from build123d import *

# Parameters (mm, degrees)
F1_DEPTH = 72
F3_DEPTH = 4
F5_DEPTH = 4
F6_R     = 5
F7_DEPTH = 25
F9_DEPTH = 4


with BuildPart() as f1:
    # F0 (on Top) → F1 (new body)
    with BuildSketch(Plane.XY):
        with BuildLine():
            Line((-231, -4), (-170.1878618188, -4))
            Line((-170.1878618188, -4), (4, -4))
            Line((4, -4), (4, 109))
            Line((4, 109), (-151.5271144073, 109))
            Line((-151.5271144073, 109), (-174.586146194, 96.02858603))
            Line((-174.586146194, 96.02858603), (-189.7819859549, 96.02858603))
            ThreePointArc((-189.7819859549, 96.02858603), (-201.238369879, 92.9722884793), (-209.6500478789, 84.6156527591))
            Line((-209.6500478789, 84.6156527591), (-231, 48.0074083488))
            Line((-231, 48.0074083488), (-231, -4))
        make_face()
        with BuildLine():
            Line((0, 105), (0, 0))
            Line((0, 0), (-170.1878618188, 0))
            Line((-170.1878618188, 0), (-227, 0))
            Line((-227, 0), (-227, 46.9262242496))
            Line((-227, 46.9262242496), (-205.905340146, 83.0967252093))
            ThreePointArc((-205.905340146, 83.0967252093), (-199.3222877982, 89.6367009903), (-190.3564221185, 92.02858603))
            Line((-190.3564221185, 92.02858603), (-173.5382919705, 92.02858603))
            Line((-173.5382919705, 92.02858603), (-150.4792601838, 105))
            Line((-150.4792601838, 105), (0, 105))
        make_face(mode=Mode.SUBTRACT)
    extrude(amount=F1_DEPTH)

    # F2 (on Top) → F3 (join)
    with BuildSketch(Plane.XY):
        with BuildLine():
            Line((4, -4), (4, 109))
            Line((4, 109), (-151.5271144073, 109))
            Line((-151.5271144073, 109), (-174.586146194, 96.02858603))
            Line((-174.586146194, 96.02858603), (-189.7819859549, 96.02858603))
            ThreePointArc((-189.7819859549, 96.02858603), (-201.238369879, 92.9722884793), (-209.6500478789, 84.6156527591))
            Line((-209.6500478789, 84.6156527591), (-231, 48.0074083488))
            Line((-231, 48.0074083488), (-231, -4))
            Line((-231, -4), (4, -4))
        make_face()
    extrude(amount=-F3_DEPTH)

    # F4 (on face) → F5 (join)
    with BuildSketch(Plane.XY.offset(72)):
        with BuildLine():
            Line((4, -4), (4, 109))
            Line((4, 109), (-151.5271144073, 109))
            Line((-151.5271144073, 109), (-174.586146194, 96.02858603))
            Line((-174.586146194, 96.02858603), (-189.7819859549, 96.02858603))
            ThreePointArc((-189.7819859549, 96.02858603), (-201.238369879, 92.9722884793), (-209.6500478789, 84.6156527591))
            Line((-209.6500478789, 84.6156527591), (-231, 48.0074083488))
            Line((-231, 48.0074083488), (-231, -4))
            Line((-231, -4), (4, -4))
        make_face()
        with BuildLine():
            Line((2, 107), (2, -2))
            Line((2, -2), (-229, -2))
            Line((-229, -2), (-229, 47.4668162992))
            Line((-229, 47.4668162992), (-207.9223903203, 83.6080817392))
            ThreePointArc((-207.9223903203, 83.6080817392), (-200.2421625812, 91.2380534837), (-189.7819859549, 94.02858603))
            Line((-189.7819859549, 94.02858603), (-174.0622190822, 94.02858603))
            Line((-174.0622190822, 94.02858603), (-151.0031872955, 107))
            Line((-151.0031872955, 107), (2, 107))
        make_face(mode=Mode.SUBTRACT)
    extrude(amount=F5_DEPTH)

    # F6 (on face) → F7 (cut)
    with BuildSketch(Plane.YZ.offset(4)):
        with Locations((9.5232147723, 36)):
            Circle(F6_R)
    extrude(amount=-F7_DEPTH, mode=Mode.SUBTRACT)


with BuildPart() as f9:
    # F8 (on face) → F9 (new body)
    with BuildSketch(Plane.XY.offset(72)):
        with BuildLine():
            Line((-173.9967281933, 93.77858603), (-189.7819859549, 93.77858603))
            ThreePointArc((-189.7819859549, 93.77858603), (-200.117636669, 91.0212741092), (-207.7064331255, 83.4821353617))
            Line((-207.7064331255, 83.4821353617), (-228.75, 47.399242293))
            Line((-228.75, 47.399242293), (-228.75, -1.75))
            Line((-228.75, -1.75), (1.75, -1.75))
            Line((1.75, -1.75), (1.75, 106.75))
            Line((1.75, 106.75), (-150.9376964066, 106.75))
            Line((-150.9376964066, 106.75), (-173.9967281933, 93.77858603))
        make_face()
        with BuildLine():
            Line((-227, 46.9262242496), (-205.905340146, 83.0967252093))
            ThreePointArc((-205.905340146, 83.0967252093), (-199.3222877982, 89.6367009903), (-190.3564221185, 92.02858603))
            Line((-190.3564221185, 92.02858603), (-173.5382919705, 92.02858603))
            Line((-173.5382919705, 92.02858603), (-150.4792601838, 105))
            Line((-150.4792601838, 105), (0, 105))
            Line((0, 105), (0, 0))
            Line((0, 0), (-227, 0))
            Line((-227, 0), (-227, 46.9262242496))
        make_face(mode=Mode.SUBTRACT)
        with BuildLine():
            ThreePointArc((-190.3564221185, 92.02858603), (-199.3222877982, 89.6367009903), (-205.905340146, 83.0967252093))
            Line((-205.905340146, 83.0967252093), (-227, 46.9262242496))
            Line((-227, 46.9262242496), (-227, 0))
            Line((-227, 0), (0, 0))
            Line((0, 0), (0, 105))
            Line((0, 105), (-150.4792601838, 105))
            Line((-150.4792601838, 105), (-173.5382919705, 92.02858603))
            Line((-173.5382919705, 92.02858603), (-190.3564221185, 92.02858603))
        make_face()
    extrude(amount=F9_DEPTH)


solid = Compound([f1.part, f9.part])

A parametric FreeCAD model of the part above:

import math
import FreeCAD as App
import Part
import Sketcher
Q = App.Units.Quantity

doc = App.newDocument("Part")
params = doc.addObject("Spreadsheet::Sheet", "Params")
for row, (alias, value) in enumerate([
    ("sketch1_radius", "23 mm"),
    ("sketch1_radius2", "18 mm"),
    ("sketch1_width", "235 mm"),
    ("sketch1_width2", "227 mm"),
    ("sketch1_height", "113 mm"),
    ("pad1_length", "72 mm"),
    ("sketch2_radius", "23 mm"),
    ("sketch2_width", "235 mm"),
    ("sketch2_height", "113 mm"),
    ("pad2_length", "4 mm"),
    ("sketch3_radius", "23 mm"),
    ("sketch3_radius2", "21 mm"),
    ("sketch3_width", "235 mm"),
    ("sketch3_width2", "231 mm"),
    ("sketch3_height", "113 mm"),
    ("pad3_length", "4 mm"),
    ("sketch4_diameter", "10 mm"),
    ("pocket1_length", "25 mm"),
    ("sketch5_radius", "20.75 mm"),
    ("sketch5_width", "230.5 mm"),
    ("sketch5_height", "108.5 mm"),
    ("pad4_length", "4 mm"),
], start=1):
    params.set(f"A{row}", alias)
    params.set(f"B{row}", "=" + value)
    params.setAlias(f"B{row}", alias)

body = doc.addObject("PartDesign::Body", "Body")

sketch1 = doc.addObject("Sketcher::SketchObject", "Sketch")
body.addObject(sketch1)
sketch1.AttachmentSupport = (doc.XY_Plane, [""])
sketch1.MapMode = "FlatFace"
sketch1.addGeometry(Part.LineSegment(App.Vector(-231, -4, 0), App.Vector(4, -4, 0)), False)
sketch1.addGeometry(Part.LineSegment(App.Vector(4, -4, 0), App.Vector(4, 109, 0)), False)
sketch1.addGeometry(Part.LineSegment(App.Vector(4, 109, 0), App.Vector(-151.527114, 109, 0)), False)
sketch1.addGeometry(Part.LineSegment(App.Vector(-151.527114, 109, 0), App.Vector(-174.586146, 96.028586, 0)), False)
sketch1.addGeometry(Part.LineSegment(App.Vector(-174.586146, 96.028586, 0), App.Vector(-189.781986, 96.028586, 0)), False)
sketch1.addGeometry(Part.ArcOfCircle(Part.Circle(App.Vector(-189.781986, 73.028586, 0), App.Vector(0, 0, 1), 23), math.radians(90), math.radians(149.749235)), False)
sketch1.addGeometry(Part.LineSegment(App.Vector(-209.650048, 84.615653, 0), App.Vector(-231, 48.007408, 0)), False)
sketch1.addGeometry(Part.LineSegment(App.Vector(-231, 48.007408, 0), App.Vector(-231, -4, 0)), False)
sketch1.addGeometry(Part.LineSegment(App.Vector(-150.47926, 105, 0), App.Vector(0, 105, 0)), False)
sketch1.addGeometry(Part.LineSegment(App.Vector(0, 105, 0), App.Vector(0, 0, 0)), False)
sketch1.addGeometry(Part.LineSegment(App.Vector(0, 0, 0), App.Vector(-227, 0, 0)), False)
sketch1.addGeometry(Part.LineSegment(App.Vector(-227, 0, 0), App.Vector(-227, 46.926224, 0)), False)
sketch1.addGeometry(Part.LineSegment(App.Vector(-227, 46.926224, 0), App.Vector(-205.90534, 83.096725, 0)), False)
sketch1.addGeometry(Part.ArcOfCircle(Part.Circle(App.Vector(-190.356422, 74.028586, 0), App.Vector(0, 0, 1), 18), math.radians(90), math.radians(149.749235)), False)
sketch1.addGeometry(Part.LineSegment(App.Vector(-190.356422, 92.028586, 0), App.Vector(-173.538292, 92.028586, 0)), False)
sketch1.addGeometry(Part.LineSegment(App.Vector(-173.538292, 92.028586, 0), App.Vector(-150.47926, 105, 0)), False)
sketch1.addConstraint(Sketcher.Constraint("Coincident", 0, 2, 1, 1))
sketch1.addConstraint(Sketcher.Constraint("Coincident", 1, 2, 2, 1))
sketch1.addConstraint(Sketcher.Constraint("Coincident", 2, 2, 3, 1))
sketch1.addConstraint(Sketcher.Constraint("Coincident", 3, 2, 4, 1))
sketch1.addConstraint(Sketcher.Constraint("Tangent", 4, 2, 5, 1))
sketch1.addConstraint(Sketcher.Constraint("Tangent", 5, 2, 6, 1))
sketch1.addConstraint(Sketcher.Constraint("Coincident", 6, 2, 7, 1))
sketch1.addConstraint(Sketcher.Constraint("Coincident", 7, 2, 0, 1))
sketch1.addConstraint(Sketcher.Constraint("Coincident", 8, 2, 9, 1))
sketch1.addConstraint(Sketcher.Constraint("Coincident", 9, 2, 10, 1))
sketch1.addConstraint(Sketcher.Constraint("Coincident", 10, 2, 11, 1))
sketch1.addConstraint(Sketcher.Constraint("Coincident", 11, 2, 12, 1))
sketch1.addConstraint(Sketcher.Constraint("Tangent", 12, 2, 13, 2))
sketch1.addConstraint(Sketcher.Constraint("Tangent", 13, 1, 14, 1))
sketch1.addConstraint(Sketcher.Constraint("Coincident", 14, 2, 15, 1))
sketch1.addConstraint(Sketcher.Constraint("Coincident", 15, 2, 8, 1))
sketch1.addConstraint(Sketcher.Constraint("Horizontal", 0))
sketch1.addConstraint(Sketcher.Constraint("Vertical", 1))
sketch1.addConstraint(Sketcher.Constraint("Horizontal", 2))
sketch1.addConstraint(Sketcher.Constraint("Horizontal", 4))
sketch1.addConstraint(Sketcher.Constraint("Vertical", 7))
sketch1.addConstraint(Sketcher.Constraint("Horizontal", 8))
sketch1.addConstraint(Sketcher.Constraint("Vertical", 9))
sketch1.addConstraint(Sketcher.Constraint("Horizontal", 10))
sketch1.addConstraint(Sketcher.Constraint("Vertical", 11))
sketch1.addConstraint(Sketcher.Constraint("Horizontal", 14))
sketch1.addConstraint(Sketcher.Constraint("Coincident", 9, 2, -1, 1))
sketch1.addConstraint(Sketcher.Constraint("Parallel", 6, 12))
sketch1.addConstraint(Sketcher.Constraint("Parallel", 3, 15))
sketch1.addConstraint(Sketcher.Constraint("Equal", 3, 15))
sketch1.addConstraint(Sketcher.Constraint("Radius", 5, Q("23 mm")))
sketch1.addConstraint(Sketcher.Constraint("Radius", 13, Q("18 mm")))
sketch1.addConstraint(Sketcher.Constraint("DistanceX", 0, 1, 0, 2, Q("235 mm")))
sketch1.addConstraint(Sketcher.Constraint("DistanceX", 10, 2, 10, 1, Q("227 mm")))
sketch1.addConstraint(Sketcher.Constraint("DistanceY", 1, 1, 1, 2, Q("113 mm")))
sketch1.addConstraint(Sketcher.Constraint("DistanceY", 9, 2, 9, 1, Q("105 mm")))
sketch1.addConstraint(Sketcher.Constraint("DistanceX", -1, 1, 0, 2, Q("4 mm")))
sketch1.addConstraint(Sketcher.Constraint("DistanceY", 0, 2, -1, 1, Q("4 mm")))
sketch1.addConstraint(Sketcher.Constraint("DistanceX", 4, 2, 4, 1, Q("15.19584 mm")))
sketch1.addConstraint(Sketcher.Constraint("DistanceX", 8, 1, 8, 2, Q("150.47926 mm")))
sketch1.addConstraint(Sketcher.Constraint("DistanceX", 14, 1, 14, 2, Q("16.81813 mm")))
sketch1.addConstraint(Sketcher.Constraint("DistanceY", 7, 2, 7, 1, Q("52.007408 mm")))
sketch1.addConstraint(Sketcher.Constraint("DistanceX", 5, 2, 3, 2, Q("35.063902 mm")))
sketch1.addConstraint(Sketcher.Constraint("Distance", 3, Q("26.45707 mm")))
sketch1.addConstraint(Sketcher.Constraint("Distance", 6, Q("42.379052 mm")))
sketch1.setExpression("Constraints[30]", "Params.sketch1_radius")
sketch1.setExpression("Constraints[31]", "Params.sketch1_radius2")
sketch1.setExpression("Constraints[32]", "Params.sketch1_width")
sketch1.setExpression("Constraints[33]", "Params.sketch1_width2")
sketch1.setExpression("Constraints[34]", "Params.sketch1_height")
pad1 = doc.addObject("PartDesign::Pad", "Pad")
body.addObject(pad1)
pad1.Profile = sketch1
pad1.setExpression("Length", "Params.pad1_length")

sketch2 = doc.addObject("Sketcher::SketchObject", "Sketch001")
body.addObject(sketch2)
sketch2.AttachmentSupport = (doc.XY_Plane, [""])
sketch2.MapMode = "FlatFace"
sketch2.addGeometry(Part.LineSegment(App.Vector(4, -4, 0), App.Vector(4, 109, 0)), False)
sketch2.addGeometry(Part.LineSegment(App.Vector(4, 109, 0), App.Vector(-151.527114, 109, 0)), False)
sketch2.addGeometry(Part.LineSegment(App.Vector(-151.527114, 109, 0), App.Vector(-174.586146, 96.028586, 0)), False)
sketch2.addGeometry(Part.LineSegment(App.Vector(-174.586146, 96.028586, 0), App.Vector(-189.781986, 96.028586, 0)), False)
sketch2.addGeometry(Part.ArcOfCircle(Part.Circle(App.Vector(-189.781986, 73.028586, 0), App.Vector(0, 0, 1), 23), math.radians(90), math.radians(149.749235)), False)
sketch2.addGeometry(Part.LineSegment(App.Vector(-209.650048, 84.615653, 0), App.Vector(-231, 48.007408, 0)), False)
sketch2.addGeometry(Part.LineSegment(App.Vector(-231, 48.007408, 0), App.Vector(-231, -4, 0)), False)
sketch2.addGeometry(Part.LineSegment(App.Vector(-231, -4, 0), App.Vector(4, -4, 0)), False)
sketch2.addConstraint(Sketcher.Constraint("Coincident", 0, 2, 1, 1))
sketch2.addConstraint(Sketcher.Constraint("Coincident", 1, 2, 2, 1))
sketch2.addConstraint(Sketcher.Constraint("Coincident", 2, 2, 3, 1))
sketch2.addConstraint(Sketcher.Constraint("Tangent", 3, 2, 4, 1))
sketch2.addConstraint(Sketcher.Constraint("Tangent", 4, 2, 5, 1))
sketch2.addConstraint(Sketcher.Constraint("Coincident", 5, 2, 6, 1))
sketch2.addConstraint(Sketcher.Constraint("Coincident", 6, 2, 7, 1))
sketch2.addConstraint(Sketcher.Constraint("Coincident", 7, 2, 0, 1))
sketch2.addConstraint(Sketcher.Constraint("Vertical", 0))
sketch2.addConstraint(Sketcher.Constraint("Horizontal", 1))
sketch2.addConstraint(Sketcher.Constraint("Horizontal", 3))
sketch2.addConstraint(Sketcher.Constraint("Vertical", 6))
sketch2.addConstraint(Sketcher.Constraint("Horizontal", 7))
sketch2.addConstraint(Sketcher.Constraint("Radius", 4, Q("23 mm")))
sketch2.addConstraint(Sketcher.Constraint("DistanceX", 7, 1, 7, 2, Q("235 mm")))
sketch2.addConstraint(Sketcher.Constraint("DistanceY", 0, 1, 0, 2, Q("113 mm")))
sketch2.addConstraint(Sketcher.Constraint("DistanceX", -1, 1, 0, 2, Q("4 mm")))
sketch2.addConstraint(Sketcher.Constraint("DistanceY", -1, 1, 0, 2, Q("109 mm")))
sketch2.addConstraint(Sketcher.Constraint("DistanceX", 3, 2, 3, 1, Q("15.19584 mm")))
sketch2.addConstraint(Sketcher.Constraint("DistanceY", 6, 2, 6, 1, Q("52.007408 mm")))
sketch2.addConstraint(Sketcher.Constraint("DistanceX", 4, 2, 2, 2, Q("35.063902 mm")))
sketch2.addConstraint(Sketcher.Constraint("Distance", 2, Q("26.45707 mm")))
sketch2.addConstraint(Sketcher.Constraint("Distance", 5, Q("42.379052 mm")))
sketch2.setExpression("Constraints[13]", "Params.sketch2_radius")
sketch2.setExpression("Constraints[14]", "Params.sketch2_width")
sketch2.setExpression("Constraints[15]", "Params.sketch2_height")
pad2 = doc.addObject("PartDesign::Pad", "Pad001")
body.addObject(pad2)
pad2.Profile = sketch2
pad2.setExpression("Length", "Params.pad2_length")
pad2.Reversed = True

sketch3 = doc.addObject("Sketcher::SketchObject", "Sketch002")
body.addObject(sketch3)
sketch3.AttachmentSupport = (doc.XY_Plane, [""])
sketch3.MapMode = "FlatFace"
sketch3.AttachmentOffset = App.Placement(App.Vector(0, 0, 72), App.Rotation())
sketch3.addGeometry(Part.LineSegment(App.Vector(4, -4, 0), App.Vector(4, 109, 0)), False)
sketch3.addGeometry(Part.LineSegment(App.Vector(4, 109, 0), App.Vector(-151.527114, 109, 0)), False)
sketch3.addGeometry(Part.LineSegment(App.Vector(-151.527114, 109, 0), App.Vector(-174.586146, 96.028586, 0)), False)
sketch3.addGeometry(Part.LineSegment(App.Vector(-174.586146, 96.028586, 0), App.Vector(-189.781986, 96.028586, 0)), False)
sketch3.addGeometry(Part.ArcOfCircle(Part.Circle(App.Vector(-189.781986, 73.028586, 0), App.Vector(0, 0, 1), 23), math.radians(90), math.radians(149.749235)), False)
sketch3.addGeometry(Part.LineSegment(App.Vector(-209.650048, 84.615653, 0), App.Vector(-231, 48.007408, 0)), False)
sketch3.addGeometry(Part.LineSegment(App.Vector(-231, 48.007408, 0), App.Vector(-231, -4, 0)), False)
sketch3.addGeometry(Part.LineSegment(App.Vector(-231, -4, 0), App.Vector(4, -4, 0)), False)
sketch3.addGeometry(Part.LineSegment(App.Vector(-151.003187, 107, 0), App.Vector(2, 107, 0)), False)
sketch3.addGeometry(Part.LineSegment(App.Vector(2, 107, 0), App.Vector(2, -2, 0)), False)
sketch3.addGeometry(Part.LineSegment(App.Vector(2, -2, 0), App.Vector(-229, -2, 0)), False)
sketch3.addGeometry(Part.LineSegment(App.Vector(-229, -2, 0), App.Vector(-229, 47.466816, 0)), False)
sketch3.addGeometry(Part.LineSegment(App.Vector(-229, 47.466816, 0), App.Vector(-207.92239, 83.608082, 0)), False)
sketch3.addGeometry(Part.ArcOfCircle(Part.Circle(App.Vector(-189.781986, 73.028586, 0), App.Vector(0, 0, 1), 21), math.radians(90), math.radians(149.749235)), False)
sketch3.addGeometry(Part.LineSegment(App.Vector(-189.781986, 94.028586, 0), App.Vector(-174.062219, 94.028586, 0)), False)
sketch3.addGeometry(Part.LineSegment(App.Vector(-174.062219, 94.028586, 0), App.Vector(-151.003187, 107, 0)), False)
sketch3.addConstraint(Sketcher.Constraint("Coincident", 0, 2, 1, 1))
sketch3.addConstraint(Sketcher.Constraint("Coincident", 1, 2, 2, 1))
sketch3.addConstraint(Sketcher.Constraint("Coincident", 2, 2, 3, 1))
sketch3.addConstraint(Sketcher.Constraint("Tangent", 3, 2, 4, 1))
sketch3.addConstraint(Sketcher.Constraint("Tangent", 4, 2, 5, 1))
sketch3.addConstraint(Sketcher.Constraint("Coincident", 5, 2, 6, 1))
sketch3.addConstraint(Sketcher.Constraint("Coincident", 6, 2, 7, 1))
sketch3.addConstraint(Sketcher.Constraint("Coincident", 7, 2, 0, 1))
sketch3.addConstraint(Sketcher.Constraint("Coincident", 8, 2, 9, 1))
sketch3.addConstraint(Sketcher.Constraint("Coincident", 9, 2, 10, 1))
sketch3.addConstraint(Sketcher.Constraint("Coincident", 10, 2, 11, 1))
sketch3.addConstraint(Sketcher.Constraint("Coincident", 11, 2, 12, 1))
sketch3.addConstraint(Sketcher.Constraint("Tangent", 12, 2, 13, 2))
sketch3.addConstraint(Sketcher.Constraint("Tangent", 13, 1, 14, 1))
sketch3.addConstraint(Sketcher.Constraint("Coincident", 14, 2, 15, 1))
sketch3.addConstraint(Sketcher.Constraint("Coincident", 15, 2, 8, 1))
sketch3.addConstraint(Sketcher.Constraint("Vertical", 0))
sketch3.addConstraint(Sketcher.Constraint("Horizontal", 1))
sketch3.addConstraint(Sketcher.Constraint("Horizontal", 3))
sketch3.addConstraint(Sketcher.Constraint("Vertical", 6))
sketch3.addConstraint(Sketcher.Constraint("Horizontal", 7))
sketch3.addConstraint(Sketcher.Constraint("Horizontal", 8))
sketch3.addConstraint(Sketcher.Constraint("Vertical", 9))
sketch3.addConstraint(Sketcher.Constraint("Horizontal", 10))
sketch3.addConstraint(Sketcher.Constraint("Vertical", 11))
sketch3.addConstraint(Sketcher.Constraint("Horizontal", 14))
sketch3.addConstraint(Sketcher.Constraint("Coincident", 13, 3, 4, 3))
sketch3.addConstraint(Sketcher.Constraint("Parallel", 5, 12))
sketch3.addConstraint(Sketcher.Constraint("Parallel", 2, 15))
sketch3.addConstraint(Sketcher.Constraint("Equal", 2, 15))
sketch3.addConstraint(Sketcher.Constraint("Radius", 4, Q("23 mm")))
sketch3.addConstraint(Sketcher.Constraint("Radius", 13, Q("21 mm")))
sketch3.addConstraint(Sketcher.Constraint("DistanceX", 7, 1, 7, 2, Q("235 mm")))
sketch3.addConstraint(Sketcher.Constraint("DistanceX", 10, 2, 10, 1, Q("231 mm")))
sketch3.addConstraint(Sketcher.Constraint("DistanceY", 0, 1, 0, 2, Q("113 mm")))
sketch3.addConstraint(Sketcher.Constraint("DistanceY", 9, 2, 9, 1, Q("109 mm")))
sketch3.addConstraint(Sketcher.Constraint("DistanceX", -1, 1, 0, 2, Q("4 mm")))
sketch3.addConstraint(Sketcher.Constraint("DistanceY", -1, 1, 0, 2, Q("109 mm")))
sketch3.addConstraint(Sketcher.Constraint("DistanceX", -1, 1, 8, 2, Q("2 mm")))
sketch3.addConstraint(Sketcher.Constraint("DistanceX", 3, 2, 3, 1, Q("15.19584 mm")))
sketch3.addConstraint(Sketcher.Constraint("DistanceY", 6, 2, 6, 1, Q("52.007408 mm")))
sketch3.addConstraint(Sketcher.Constraint("DistanceX", 4, 2, 2, 2, Q("35.063902 mm")))
sketch3.addConstraint(Sketcher.Constraint("DistanceX", 3, 2, 15, 2, Q("38.778799 mm")))
sketch3.addConstraint(Sketcher.Constraint("Distance", 2, Q("26.45707 mm")))
sketch3.addConstraint(Sketcher.Constraint("Distance", 5, Q("42.379052 mm")))
sketch3.setExpression("Constraints[30]", "Params.sketch3_radius")
sketch3.setExpression("Constraints[31]", "Params.sketch3_radius2")
sketch3.setExpression("Constraints[32]", "Params.sketch3_width")
sketch3.setExpression("Constraints[33]", "Params.sketch3_width2")
sketch3.setExpression("Constraints[34]", "Params.sketch3_height")
pad3 = doc.addObject("PartDesign::Pad", "Pad002")
body.addObject(pad3)
pad3.Profile = sketch3
pad3.setExpression("Length", "Params.pad3_length")

sketch4 = doc.addObject("Sketcher::SketchObject", "Sketch003")
body.addObject(sketch4)
sketch4.AttachmentSupport = (doc.YZ_Plane, [""])
sketch4.MapMode = "FlatFace"
sketch4.AttachmentOffset = App.Placement(App.Vector(0, 0, 4), App.Rotation())
sketch4.addGeometry(Part.Circle(App.Vector(9.523215, 36, 0), App.Vector(0, 0, 1), 5), False)
sketch4.addConstraint(Sketcher.Constraint("Diameter", 0, Q("10 mm")))
sketch4.addConstraint(Sketcher.Constraint("DistanceY", -1, 1, 0, 3, Q("36 mm")))
sketch4.addConstraint(Sketcher.Constraint("DistanceX", -1, 1, 0, 3, Q("9.523215 mm")))
sketch4.setExpression("Constraints[0]", "Params.sketch4_diameter")
pocket1 = doc.addObject("PartDesign::Pocket", "Pocket")
body.addObject(pocket1)
pocket1.Profile = sketch4
pocket1.setExpression("Length", "Params.pocket1_length")
body2 = doc.addObject("PartDesign::Body", "Body001")

sketch5 = doc.addObject("Sketcher::SketchObject", "Sketch004")
body2.addObject(sketch5)
sketch5.AttachmentSupport = (doc.getObject("XY_Plane001"), [""])
sketch5.MapMode = "FlatFace"
sketch5.AttachmentOffset = App.Placement(App.Vector(0, 0, 72), App.Rotation())
sketch5.addGeometry(Part.LineSegment(App.Vector(-173.996728, 93.778586, 0), App.Vector(-189.781986, 93.778586, 0)), False)
sketch5.addGeometry(Part.ArcOfCircle(Part.Circle(App.Vector(-189.781986, 73.028586, 0), App.Vector(0, 0, 1), 20.75), math.radians(90), math.radians(149.749235)), False)
sketch5.addGeometry(Part.LineSegment(App.Vector(-207.706433, 83.482135, 0), App.Vector(-228.75, 47.399242, 0)), False)
sketch5.addGeometry(Part.LineSegment(App.Vector(-228.75, 47.399242, 0), App.Vector(-228.75, -1.75, 0)), False)
sketch5.addGeometry(Part.LineSegment(App.Vector(-228.75, -1.75, 0), App.Vector(1.75, -1.75, 0)), False)
sketch5.addGeometry(Part.LineSegment(App.Vector(1.75, -1.75, 0), App.Vector(1.75, 106.75, 0)), False)
sketch5.addGeometry(Part.LineSegment(App.Vector(1.75, 106.75, 0), App.Vector(-150.937696, 106.75, 0)), False)
sketch5.addGeometry(Part.LineSegment(App.Vector(-150.937696, 106.75, 0), App.Vector(-173.996728, 93.778586, 0)), False)
sketch5.addConstraint(Sketcher.Constraint("Tangent", 0, 2, 1, 1))
sketch5.addConstraint(Sketcher.Constraint("Tangent", 1, 2, 2, 1))
sketch5.addConstraint(Sketcher.Constraint("Coincident", 2, 2, 3, 1))
sketch5.addConstraint(Sketcher.Constraint("Coincident", 3, 2, 4, 1))
sketch5.addConstraint(Sketcher.Constraint("Coincident", 4, 2, 5, 1))
sketch5.addConstraint(Sketcher.Constraint("Coincident", 5, 2, 6, 1))
sketch5.addConstraint(Sketcher.Constraint("Coincident", 6, 2, 7, 1))
sketch5.addConstraint(Sketcher.Constraint("Coincident", 7, 2, 0, 1))
sketch5.addConstraint(Sketcher.Constraint("Horizontal", 0))
sketch5.addConstraint(Sketcher.Constraint("Vertical", 3))
sketch5.addConstraint(Sketcher.Constraint("Horizontal", 4))
sketch5.addConstraint(Sketcher.Constraint("Vertical", 5))
sketch5.addConstraint(Sketcher.Constraint("Horizontal", 6))
sketch5.addConstraint(Sketcher.Constraint("Radius", 1, Q("20.75 mm")))
sketch5.addConstraint(Sketcher.Constraint("DistanceX", 4, 1, 4, 2, Q("230.5 mm")))
sketch5.addConstraint(Sketcher.Constraint("DistanceY", 5, 1, 5, 2, Q("108.5 mm")))
sketch5.addConstraint(Sketcher.Constraint("DistanceX", 2, 2, -1, 1, Q("228.75 mm")))
sketch5.addConstraint(Sketcher.Constraint("DistanceY", 3, 2, -1, 1, Q("1.75 mm")))
sketch5.addConstraint(Sketcher.Constraint("Distance", 7, Q("26.45707 mm")))
sketch5.addConstraint(Sketcher.Constraint("DistanceX", 0, 2, 0, 1, Q("15.785258 mm")))
sketch5.addConstraint(Sketcher.Constraint("DistanceX", 6, 2, 6, 1, Q("152.687696 mm")))
sketch5.addConstraint(Sketcher.Constraint("DistanceY", 3, 2, 3, 1, Q("49.149242 mm")))
sketch5.addConstraint(Sketcher.Constraint("DistanceX", 7, 2, -1, 1, Q("173.996728 mm")))
sketch5.setExpression("Constraints[13]", "Params.sketch5_radius")
sketch5.setExpression("Constraints[14]", "Params.sketch5_width")
sketch5.setExpression("Constraints[15]", "Params.sketch5_height")
pad4 = doc.addObject("PartDesign::Pad", "Pad003")
body2.addObject(pad4)
pad4.Profile = sketch5
pad4.setExpression("Length", "Params.pad4_length")

doc.recompute()
